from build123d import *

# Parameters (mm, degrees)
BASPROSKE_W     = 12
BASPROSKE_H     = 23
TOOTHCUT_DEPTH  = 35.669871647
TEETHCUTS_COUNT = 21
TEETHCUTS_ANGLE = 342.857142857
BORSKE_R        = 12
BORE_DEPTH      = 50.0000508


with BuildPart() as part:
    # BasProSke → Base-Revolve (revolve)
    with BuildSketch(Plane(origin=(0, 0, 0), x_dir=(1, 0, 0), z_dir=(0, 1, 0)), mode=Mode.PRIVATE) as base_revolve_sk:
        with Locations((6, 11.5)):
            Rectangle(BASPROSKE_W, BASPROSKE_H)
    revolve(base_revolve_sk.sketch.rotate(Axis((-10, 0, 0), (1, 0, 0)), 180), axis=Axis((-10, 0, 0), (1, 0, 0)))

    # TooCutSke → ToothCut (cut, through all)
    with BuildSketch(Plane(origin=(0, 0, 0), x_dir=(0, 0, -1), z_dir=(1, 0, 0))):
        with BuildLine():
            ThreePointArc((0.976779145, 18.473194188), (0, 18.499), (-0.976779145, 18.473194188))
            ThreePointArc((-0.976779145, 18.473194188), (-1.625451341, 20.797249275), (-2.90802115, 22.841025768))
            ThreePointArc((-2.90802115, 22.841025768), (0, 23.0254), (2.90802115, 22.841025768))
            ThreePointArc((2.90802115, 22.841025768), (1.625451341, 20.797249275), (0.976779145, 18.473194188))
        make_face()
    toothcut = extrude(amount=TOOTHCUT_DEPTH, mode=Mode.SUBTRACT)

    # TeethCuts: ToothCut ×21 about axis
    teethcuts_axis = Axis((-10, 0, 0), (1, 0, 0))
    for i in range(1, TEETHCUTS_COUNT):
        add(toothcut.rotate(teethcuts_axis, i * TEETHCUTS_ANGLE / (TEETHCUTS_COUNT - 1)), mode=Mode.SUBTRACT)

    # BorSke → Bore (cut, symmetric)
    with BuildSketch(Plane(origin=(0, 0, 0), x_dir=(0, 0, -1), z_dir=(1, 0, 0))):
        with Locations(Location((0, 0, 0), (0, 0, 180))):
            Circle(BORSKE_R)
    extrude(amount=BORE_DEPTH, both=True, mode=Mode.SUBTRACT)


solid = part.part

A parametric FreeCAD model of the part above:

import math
import FreeCAD as App
import Part
import Sketcher
Q = App.Units.Quantity


def add_polygon(sketch, points):
    """Adds a closed chain of lines whose ends are joined by coincident constraints."""
    first, n = sketch.GeometryCount, len(points)
    for a, b in zip(points, points[1:] + points[:1]):
        sketch.addGeometry(Part.LineSegment(App.Vector(*a, 0), App.Vector(*b, 0)), False)
    for i in range(n):
        sketch.addConstraint(Sketcher.Constraint("Coincident", first + i, 2, first + (i + 1) % n, 1))

doc = App.newDocument("Part")
params = doc.addObject("Spreadsheet::Sheet", "Params")
for row, (alias, value) in enumerate([
    ("sketch1_width", "12 mm"),
    ("sketch1_height", "23 mm"),
    ("revolution_angle", "360 deg"),
    ("sketch2_radius", "8.4 mm"),
    ("sketch3_diameter", "24 mm"),
    ("pocket2_length", "100.000102 mm"),
], start=1):
    params.set(f"A{row}", alias)
    params.set(f"B{row}", "=" + value)
    params.setAlias(f"B{row}", alias)

body = doc.addObject("PartDesign::Body", "Body")

sketch1 = body.newObject("Sketcher::SketchObject", "Sketch")
sketch1.AttachmentSupport = (doc.getObject("XZ_Plane"), [""])
sketch1.MapMode = "FlatFace"
add_polygon(sketch1, [(0, -23), (0, 0), (12, 0), (12, -23)])
sketch1.addConstraint([
    Sketcher.Constraint("Vertical", 0),
    Sketcher.Constraint("Horizontal", 1),
    Sketcher.Constraint("Vertical", 2),
    Sketcher.Constraint("Horizontal", 3),
    Sketcher.Constraint("Coincident", 0, 2, -1, 1),
    Sketcher.Constraint("DistanceX", 1, 1, 1, 2, Q("12 mm")),
    Sketcher.Constraint("DistanceY", 0, 1, 0, 2, Q("23 mm")),
])
sketch1.setExpression("Constraints[9]", "Params.sketch1_width")
sketch1.setExpression("Constraints[10]", "Params.sketch1_height")
revolution = body.newObject("PartDesign::Revolution", "Revolution")
revolution.Profile = sketch1
revolution.ReferenceAxis = (sketch1, ["H_Axis"])
revolution.setExpression("Angle", "Params.revolution_angle")

sketch2 = body.newObject("Sketcher::SketchObject", "Sketch001")
sketch2.AttachmentSupport = (doc.getObject("YZ_Plane"), [""])
sketch2.MapMode = "FlatFace"
sketch2.addGeometry([
    Part.ArcOfCircle(Part.Circle(App.Vector(0, 0, 0), App.Vector(0, 0, 1), 18.499), math.radians(-3.026724), math.radians(3.026724)),
    Part.ArcOfCircle(Part.Circle(App.Vector(17.400404, -9.307993, 0), App.Vector(0, 0, 1), 8.4), math.radians(49.632108), math.radians(82.66254)),
    Part.ArcOfCircle(Part.Circle(App.Vector(0, 0, 0), App.Vector(0, 0, 1), 23.0254), math.radians(-7.255617), math.radians(7.255617)),
    Part.ArcOfCircle(Part.Circle(App.Vector(17.400404, 9.307993, 0), App.Vector(0, 0, 1), 8.4), math.radians(-82.66254), math.radians(-49.632108)),
], False)
sketch2.addConstraint([
    Sketcher.Constraint("Coincident", 0, 1, 1, 2),
    Sketcher.Constraint("Coincident", 1, 1, 2, 1),
    Sketcher.Constraint("Coincident", 2, 2, 3, 2),
    Sketcher.Constraint("Coincident", 3, 1, 0, 2),
    Sketcher.Constraint("Coincident", 0, 3, -1, 1),
    Sketcher.Constraint("Coincident", 2, 3, -1, 1),
    Sketcher.Constraint("Equal", 1, 3),
    Sketcher.Constraint("Symmetric", 1, 3, 3, 3, -1),
    Sketcher.Constraint("Radius", 1, Q("8.4 mm")),
    Sketcher.Constraint("Radius", 0, Q("18.499 mm")),
    Sketcher.Constraint("Radius", 2, Q("23.0254 mm")),
    Sketcher.Constraint("DistanceY", 0, 1, 2, 2, Q("3.8848 mm")),
    Sketcher.Constraint("DistanceY", 0, 1, -1, 1, Q("0.976779 mm")),
])
sketch2.setExpression("Constraints[8]", "Params.sketch2_radius")
pocket1 = body.newObject("PartDesign::Pocket", "Pocket")
pocket1.Profile = sketch2
pocket1.Type = "ThroughAll"
pocket1.Reversed = True
doc.recompute()

polarpattern = body.newObject("PartDesign::PolarPattern", "PolarPattern")
polarpattern.Originals = [pocket1]
polarpattern.Axis = (doc.getObject("X_Axis"), [""])
polarpattern.Angle = 360
polarpattern.Occurrences = 21
body.Tip = polarpattern

sketch3 = body.newObject("Sketcher::SketchObject", "Sketch002")
sketch3.AttachmentSupport = (doc.getObject("YZ_Plane"), [""])
sketch3.MapMode = "FlatFace"
sketch3.addGeometry(Part.Circle(App.Vector(0, 0, 0), App.Vector(0, 0, 1), 12), False)
sketch3.addConstraint([
    Sketcher.Constraint("Coincident", 0, 3, -1, 1),
    Sketcher.Constraint("Diameter", 0, Q("24 mm")),
])
sketch3.setExpression("Constraints[1]", "Params.sketch3_diameter")
pocket2 = body.newObject("PartDesign::Pocket", "Pocket001")
pocket2.Profile = sketch3
pocket2.setExpression("Length", "Params.pocket2_length")
pocket2.Midplane = True

doc.recompute()
